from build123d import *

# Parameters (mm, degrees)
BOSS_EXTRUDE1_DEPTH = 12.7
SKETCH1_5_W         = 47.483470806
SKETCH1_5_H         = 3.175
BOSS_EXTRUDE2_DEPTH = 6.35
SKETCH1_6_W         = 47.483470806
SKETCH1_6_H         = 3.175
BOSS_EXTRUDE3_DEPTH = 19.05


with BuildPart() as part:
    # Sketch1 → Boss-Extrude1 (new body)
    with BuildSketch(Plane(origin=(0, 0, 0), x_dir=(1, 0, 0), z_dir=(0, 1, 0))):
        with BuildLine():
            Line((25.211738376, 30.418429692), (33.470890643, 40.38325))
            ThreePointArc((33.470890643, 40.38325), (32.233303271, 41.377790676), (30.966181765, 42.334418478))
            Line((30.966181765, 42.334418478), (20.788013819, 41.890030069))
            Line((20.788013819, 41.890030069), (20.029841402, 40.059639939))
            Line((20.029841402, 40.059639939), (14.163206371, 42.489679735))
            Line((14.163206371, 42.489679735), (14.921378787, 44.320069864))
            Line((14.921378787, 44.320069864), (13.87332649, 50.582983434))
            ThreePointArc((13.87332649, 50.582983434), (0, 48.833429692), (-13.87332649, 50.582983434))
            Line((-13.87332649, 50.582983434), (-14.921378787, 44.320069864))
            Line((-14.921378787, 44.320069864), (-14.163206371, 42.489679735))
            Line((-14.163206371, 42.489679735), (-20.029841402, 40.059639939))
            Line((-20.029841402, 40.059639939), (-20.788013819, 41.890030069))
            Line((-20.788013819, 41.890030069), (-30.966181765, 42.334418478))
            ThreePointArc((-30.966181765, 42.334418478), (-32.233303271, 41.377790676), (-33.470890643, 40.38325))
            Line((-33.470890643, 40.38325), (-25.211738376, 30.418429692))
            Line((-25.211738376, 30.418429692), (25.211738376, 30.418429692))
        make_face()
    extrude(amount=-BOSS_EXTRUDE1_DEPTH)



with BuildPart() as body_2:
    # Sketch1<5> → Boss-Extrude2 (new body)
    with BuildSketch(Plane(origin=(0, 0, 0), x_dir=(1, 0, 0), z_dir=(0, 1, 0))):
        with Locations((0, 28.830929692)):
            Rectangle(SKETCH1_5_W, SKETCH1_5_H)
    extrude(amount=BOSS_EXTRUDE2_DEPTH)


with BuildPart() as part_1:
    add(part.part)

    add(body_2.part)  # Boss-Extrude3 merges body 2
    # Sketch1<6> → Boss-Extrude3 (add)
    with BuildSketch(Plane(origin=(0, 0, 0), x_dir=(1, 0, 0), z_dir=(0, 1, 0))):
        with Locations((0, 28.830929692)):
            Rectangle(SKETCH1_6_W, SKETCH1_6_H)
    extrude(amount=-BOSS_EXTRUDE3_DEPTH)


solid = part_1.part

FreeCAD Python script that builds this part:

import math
import FreeCAD as App
import Part
import Sketcher

V = App.Vector
Q = App.Units.Quantity


def add_polygon(sketch, points):
    """Adds a closed chain of lines whose ends are joined by coincident constraints."""
    first, n = sketch.GeometryCount, len(points)
    for a, b in zip(points, points[1:] + points[:1]):
        sketch.addGeometry(Part.LineSegment(App.Vector(*a, 0), App.Vector(*b, 0)), False)
    for i in range(n):
        sketch.addConstraint(Sketcher.Constraint("Coincident", first + i, 2, first + (i + 1) % n, 1))

doc = App.newDocument("Part")
body = doc.addObject("PartDesign::Body", "Body")

# Sketch on XZ plane
sketch1 = body.newObject("Sketcher::SketchObject", "Sketch")
sketch1.AttachmentSupport = (doc.getObject("XZ_Plane"), [""])
sketch1.MapMode = "FlatFace"
sketch1.addGeometry([
    Part.LineSegment(V(25.211738, -30.41843, 0), V(33.470891, -40.38325, 0)),  # 0
    Part.ArcOfCircle(Part.Circle(V(0, 0, 0), V(0, 0, 1), 52.451), math.radians(-53.815804), math.radians(-50.347007)),  # 1
    Part.LineSegment(V(30.966182, -42.334418, 0), V(20.788014, -41.89003, 0)),  # 2
    Part.LineSegment(V(20.788014, -41.89003, 0), V(20.029841, -40.05964, 0)),  # 3
    Part.LineSegment(V(20.029841, -40.05964, 0), V(14.163206, -42.48968, 0)),  # 4
    Part.LineSegment(V(14.163206, -42.48968, 0), V(14.921379, -44.32007, 0)),  # 5
    Part.LineSegment(V(14.921379, -44.32007, 0), V(13.873326, -50.582983, 0)),  # 6
    Part.ArcOfCircle(Part.Circle(V(0, -104.71343, 0), V(0, 0, 1), 55.88), math.radians(75.624838), math.radians(104.375162)),  # 7
    Part.LineSegment(V(-13.873326, -50.582983, 0), V(-14.921379, -44.32007, 0)),  # 8
    Part.LineSegment(V(-14.921379, -44.32007, 0), V(-14.163206, -42.48968, 0)),  # 9
    Part.LineSegment(V(-14.163206, -42.48968, 0), V(-20.029841, -40.05964, 0)),  # 10
    Part.LineSegment(V(-20.029841, -40.05964, 0), V(-20.788014, -41.89003, 0)),  # 11
    Part.LineSegment(V(-20.788014, -41.89003, 0), V(-30.966182, -42.334418, 0)),  # 12
    Part.ArcOfCircle(Part.Circle(V(0, 0, 0), V(0, 0, 1), 52.451), math.radians(-129.652993), math.radians(-126.184196)),  # 13
    Part.LineSegment(V(-33.470891, -40.38325, 0), V(-25.211738, -30.41843, 0)),  # 14
    Part.LineSegment(V(-25.211738, -30.41843, 0), V(25.211738, -30.41843, 0)),  # 15
], False)
sketch1.addConstraint([
    Sketcher.Constraint("Coincident", 0, 2, 1, 2),
    Sketcher.Constraint("Coincident", 1, 1, 2, 1),
    Sketcher.Constraint("Coincident", 2, 2, 3, 1),
    Sketcher.Constraint("Coincident", 3, 2, 4, 1),
    Sketcher.Constraint("Coincident", 4, 2, 5, 1),
    Sketcher.Constraint("Coincident", 5, 2, 6, 1),
    Sketcher.Constraint("Coincident", 6, 2, 7, 1),
    Sketcher.Constraint("Coincident", 7, 2, 8, 1),
    Sketcher.Constraint("Coincident", 8, 2, 9, 1),
    Sketcher.Constraint("Coincident", 9, 2, 10, 1),
    Sketcher.Constraint("Coincident", 10, 2, 11, 1),
    Sketcher.Constraint("Coincident", 11, 2, 12, 1),
    Sketcher.Constraint("Coincident", 12, 2, 13, 2),
    Sketcher.Constraint("Coincident", 13, 1, 14, 1),
    Sketcher.Constraint("Coincident", 14, 2, 15, 1),
    Sketcher.Constraint("Coincident", 15, 2, 0, 1),
    Sketcher.Constraint("Horizontal", 15),
    Sketcher.Constraint("Coincident", 1, 3, -1, 1),
    Sketcher.Constraint("Coincident", 13, 3, -1, 1),
    Sketcher.Constraint("Equal", 1, 13),
    Sketcher.Constraint("Symmetric", 6, 2, 7, 2, -2),
    Sketcher.Constraint("Symmetric", 5, 2, 8, 2, -2),
    Sketcher.Constraint("Symmetric", 4, 2, 9, 2, -2),
    Sketcher.Constraint("Symmetric", 3, 2, 10, 2, -2),
    Sketcher.Constraint("Symmetric", 2, 2, 11, 2, -2),
    Sketcher.Constraint("Perpendicular", 3, 4),
    Sketcher.Constraint("Perpendicular", 4, 5),
    Sketcher.Constraint("Horizontal", 1, 1, 12, 2),
    Sketcher.Constraint("Horizontal", 0, 2, 13, 1),
    Sketcher.Constraint("Equal", 3, 5),
    Sketcher.Constraint("Equal", 4, 6),
    Sketcher.Constraint("Equal", 0, 14),
    Sketcher.Constraint("Radius", 7, Q("2.2 in")),
    Sketcher.Constraint("Radius", 1, Q("2.065 in")),
    Sketcher.Constraint("Angle", 2, Q("177.5 deg")),
    Sketcher.Constraint("Angle", 3, Q("112.5 deg")),
    Sketcher.Constraint("Angle", 6, Q("-99.5 deg")),
    Sketcher.Constraint("Distance", 4, Q("0.25 in")),
    Sketcher.Constraint("Distance", 3, Q("0.078 in")),
    Sketcher.Constraint("DistanceY", 7, 3, 2, 2, Q("62.8234 mm")),
    Sketcher.Constraint("DistanceY", 11, 2, 14, 2, Q("11.4716 mm")),
    Sketcher.Constraint("DistanceX", 15, 1, 15, 2, Q("50.423477 mm")),
    Sketcher.Constraint("DistanceY", 7, 3, -1, 1, Q("104.71343 mm")),
    Sketcher.Constraint("DistanceX", -1, 1, 0, 2, Q("33.470891 mm")),
])
pad1 = body.newObject("PartDesign::Pad", "Pad")
pad1.Profile = sketch1
pad1.Length = Q("0.5 in")
body2 = doc.addObject("PartDesign::Body", "Body001")

# Sketch on XZ plane
sketch2 = body2.newObject("Sketcher::SketchObject", "Sketch001")
sketch2.AttachmentSupport = (doc.getObject("XZ_Plane001"), [""])
sketch2.MapMode = "FlatFace"
add_polygon(sketch2, [(-23.741735, -30.41843), (-23.741735, -27.24343), (23.741735, -27.24343), (23.741735, -30.41843)])  # lines 0-3
sketch2.addConstraint([
    Sketcher.Constraint("Vertical", 0),
    Sketcher.Constraint("Horizontal", 1),
    Sketcher.Constraint("Vertical", 2),
    Sketcher.Constraint("Horizontal", 3),
    Sketcher.Constraint("DistanceY", 0, 1, 0, 2, Q("0.125 in")),
    Sketcher.Constraint("DistanceX", 1, 1, 1, 2, Q("47.483471 mm")),
    Sketcher.Constraint("DistanceY", 0, 2, -1, 1, Q("27.24343 mm")),
    Sketcher.Constraint("DistanceX", 0, 2, -1, 1, Q("23.741735 mm")),
])
pad2 = body2.newObject("PartDesign::Pad", "Pad001")
pad2.Profile = sketch2
pad2.Length = Q("0.25 in")
pad2.Reversed = True
body.AllowCompound = True
doc.recompute()

boolean = body.newObject("PartDesign::Boolean", "Boolean")
boolean.Type = "Fuse"
boolean.addObjects([body2])

# Sketch on XZ plane
sketch3 = body.newObject("Sketcher::SketchObject", "Sketch002")
sketch3.AttachmentSupport = (doc.getObject("XZ_Plane"), [""])
sketch3.MapMode = "FlatFace"
add_polygon(sketch3, [(-23.741735, -30.41843), (-23.741735, -27.24343), (23.741735, -27.24343), (23.741735, -30.41843)])  # lines 0-3
sketch3.addConstraint([
    Sketcher.Constraint("Vertical", 0),
    Sketcher.Constraint("Horizontal", 1),
    Sketcher.Constraint("Vertical", 2),
    Sketcher.Constraint("Horizontal", 3),
    Sketcher.Constraint("DistanceY", 0, 1, 0, 2, Q("0.125 in")),
    Sketcher.Constraint("DistanceX", 1, 1, 1, 2, Q("47.483471 mm")),
    Sketcher.Constraint("DistanceY", 0, 2, -1, 1, Q("27.24343 mm")),
    Sketcher.Constraint("DistanceX", 0, 2, -1, 1, Q("23.741735 mm")),
])
pad3 = body.newObject("PartDesign::Pad", "Pad002")
pad3.Profile = sketch3
pad3.Length = Q("0.75 in")

doc.recompute()
